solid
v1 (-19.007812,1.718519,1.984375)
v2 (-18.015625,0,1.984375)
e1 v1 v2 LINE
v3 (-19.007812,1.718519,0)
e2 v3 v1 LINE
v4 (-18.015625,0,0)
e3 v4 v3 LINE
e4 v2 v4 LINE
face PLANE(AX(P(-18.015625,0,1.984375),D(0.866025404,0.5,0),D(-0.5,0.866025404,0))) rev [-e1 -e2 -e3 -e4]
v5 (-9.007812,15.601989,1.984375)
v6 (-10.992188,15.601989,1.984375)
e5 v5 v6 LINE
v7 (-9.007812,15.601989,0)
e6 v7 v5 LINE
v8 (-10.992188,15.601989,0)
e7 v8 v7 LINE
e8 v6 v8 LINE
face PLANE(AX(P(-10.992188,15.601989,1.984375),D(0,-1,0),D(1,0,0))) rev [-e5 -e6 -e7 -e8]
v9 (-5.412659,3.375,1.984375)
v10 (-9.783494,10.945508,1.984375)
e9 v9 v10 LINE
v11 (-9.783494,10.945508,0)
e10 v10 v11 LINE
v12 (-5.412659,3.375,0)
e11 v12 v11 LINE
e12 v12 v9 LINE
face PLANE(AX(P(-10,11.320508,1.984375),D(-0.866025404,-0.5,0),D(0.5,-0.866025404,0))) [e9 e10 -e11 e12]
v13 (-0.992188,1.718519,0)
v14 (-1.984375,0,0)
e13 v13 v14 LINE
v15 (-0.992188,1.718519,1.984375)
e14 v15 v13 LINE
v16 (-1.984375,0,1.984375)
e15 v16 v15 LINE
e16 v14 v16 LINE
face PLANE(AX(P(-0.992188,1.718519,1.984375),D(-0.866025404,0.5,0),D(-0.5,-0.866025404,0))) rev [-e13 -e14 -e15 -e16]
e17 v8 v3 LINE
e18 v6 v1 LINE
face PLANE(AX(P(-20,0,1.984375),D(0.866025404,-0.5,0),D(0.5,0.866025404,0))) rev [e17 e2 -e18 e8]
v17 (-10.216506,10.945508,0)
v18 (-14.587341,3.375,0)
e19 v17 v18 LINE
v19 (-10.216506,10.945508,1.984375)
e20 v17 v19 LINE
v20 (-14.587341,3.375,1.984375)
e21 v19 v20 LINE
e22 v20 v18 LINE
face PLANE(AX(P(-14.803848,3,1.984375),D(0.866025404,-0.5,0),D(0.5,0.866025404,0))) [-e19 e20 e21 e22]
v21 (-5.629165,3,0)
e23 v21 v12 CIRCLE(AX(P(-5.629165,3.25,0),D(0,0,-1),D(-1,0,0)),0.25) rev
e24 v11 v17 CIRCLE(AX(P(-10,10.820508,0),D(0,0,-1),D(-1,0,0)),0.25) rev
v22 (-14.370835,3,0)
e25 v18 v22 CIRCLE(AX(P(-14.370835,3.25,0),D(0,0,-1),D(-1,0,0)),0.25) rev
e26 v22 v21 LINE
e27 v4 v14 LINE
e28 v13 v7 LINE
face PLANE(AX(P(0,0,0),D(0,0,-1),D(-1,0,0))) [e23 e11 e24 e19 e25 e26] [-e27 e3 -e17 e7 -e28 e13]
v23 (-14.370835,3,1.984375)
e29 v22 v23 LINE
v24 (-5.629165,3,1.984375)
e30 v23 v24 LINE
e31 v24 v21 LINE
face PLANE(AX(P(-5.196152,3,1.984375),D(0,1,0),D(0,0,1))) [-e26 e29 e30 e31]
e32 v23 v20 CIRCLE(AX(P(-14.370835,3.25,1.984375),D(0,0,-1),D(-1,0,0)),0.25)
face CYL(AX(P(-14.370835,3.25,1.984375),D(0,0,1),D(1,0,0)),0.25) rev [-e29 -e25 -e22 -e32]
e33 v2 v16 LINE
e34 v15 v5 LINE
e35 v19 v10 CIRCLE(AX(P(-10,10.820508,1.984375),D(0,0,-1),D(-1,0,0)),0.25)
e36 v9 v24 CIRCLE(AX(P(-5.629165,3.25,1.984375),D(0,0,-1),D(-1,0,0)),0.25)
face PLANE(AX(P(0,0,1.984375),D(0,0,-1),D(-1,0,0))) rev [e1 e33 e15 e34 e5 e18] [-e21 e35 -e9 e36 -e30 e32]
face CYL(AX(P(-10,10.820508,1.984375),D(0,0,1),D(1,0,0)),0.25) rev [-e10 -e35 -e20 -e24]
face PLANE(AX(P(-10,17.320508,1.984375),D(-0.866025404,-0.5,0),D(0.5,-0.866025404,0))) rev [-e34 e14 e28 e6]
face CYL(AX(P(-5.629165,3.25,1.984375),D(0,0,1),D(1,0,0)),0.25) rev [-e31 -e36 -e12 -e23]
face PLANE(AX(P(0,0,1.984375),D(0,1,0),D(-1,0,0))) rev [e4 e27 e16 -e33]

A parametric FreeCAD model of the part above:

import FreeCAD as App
import Part
import Sketcher
Q = App.Units.Quantity


def edges_at(feature, points):
    """Names of the edges that pass closest to the given points."""
    edges = feature.Shape.Edges
    near = lambda p: min(range(len(edges)), key=lambda i: edges[i].distToShape(Part.Vertex(*p))[0])
    return sorted({f"Edge{near(p) + 1}" for p in points})


def add_polygon(sketch, points):
    """Adds a closed chain of lines whose ends are joined by coincident constraints."""
    first, n = sketch.GeometryCount, len(points)
    for a, b in zip(points, points[1:] + points[:1]):
        sketch.addGeometry(Part.LineSegment(App.Vector(*a, 0), App.Vector(*b, 0)), False)
    for i in range(n):
        sketch.addConstraint(Sketcher.Constraint("Coincident", first + i, 2, first + (i + 1) % n, 1))

doc = App.newDocument("Part")
params = doc.addObject("Spreadsheet::Sheet", "Params")
for row, (alias, value) in enumerate([
    ("sketch1_width", "20 mm"),
    ("pad1_length", "1.984375 mm"),
    ("chamfer_size", "1.984375 mm"),
    ("chamfer2_size", "1.984375 mm"),
    ("chamfer3_size", "1.984375 mm"),
    ("fillet_radius", "0.25 mm"),
], start=1):
    params.set(f"A{row}", alias)
    params.set(f"B{row}", "=" + value)
    params.setAlias(f"B{row}", alias)

body = doc.addObject("PartDesign::Body", "Body")

sketch1 = body.newObject("Sketcher::SketchObject", "Sketch")
sketch1.AttachmentSupport = (doc.getObject("XY_Plane"), [""])
sketch1.MapMode = "FlatFace"
add_polygon(sketch1, [(-20, 0), (0, 0), (-10, 17.320508)])
add_polygon(sketch1, [(-14.803848, 3), (-10, 11.320508), (-5.196152, 3)])
sketch1.addConstraint([
    Sketcher.Constraint("Horizontal", 0),
    Sketcher.Constraint("Horizontal", 5),
    Sketcher.Constraint("Coincident", 0, 2, -1, 1),
    Sketcher.Constraint("Parallel", 2, 3),
    Sketcher.Constraint("Parallel", 1, 4),
    Sketcher.Constraint("Vertical", 1, 2, 3, 2),
    Sketcher.Constraint("Equal", 1, 2),
    Sketcher.Constraint("DistanceX", 0, 1, 0, 2, 20.0),
    Sketcher.Constraint("Angle", 1, Q("120 deg")),
    Sketcher.Constraint("DistanceY", -1, 1, 4, 2, 3.0),
    Sketcher.Constraint("DistanceY", 3, 2, 1, 2, 6.0),
])
sketch1.setExpression("Constraints[13]", "Params.sketch1_width")
pad1 = body.newObject("PartDesign::Pad", "Pad")
pad1.Profile = sketch1
pad1.setExpression("Length", "Params.pad1_length")
doc.recompute()

chamfer = body.newObject("PartDesign::Chamfer", "Chamfer")
chamfer.Base = (pad1, edges_at(pad1, [(-20, 0, 0.992)]))
chamfer.setExpression("Size", "Params.chamfer_size")
doc.recompute()

chamfer2 = body.newObject("PartDesign::Chamfer", "Chamfer001")
chamfer2.Base = (chamfer, edges_at(chamfer, [(0, 0, 0.992)]))
chamfer2.setExpression("Size", "Params.chamfer2_size")
doc.recompute()

chamfer3 = body.newObject("PartDesign::Chamfer", "Chamfer002")
chamfer3.Base = (chamfer2, edges_at(chamfer2, [(-10, 17.321, 0.992)]))
chamfer3.setExpression("Size", "Params.chamfer3_size")
doc.recompute()

fillet = body.newObject("PartDesign::Fillet", "Fillet")
fillet.Base = (chamfer3, edges_at(chamfer3, [(-14.804, 3, 0.992), (-5.196, 3, 0.992), (-10, 11.321, 0.992)]))
fillet.setExpression("Radius", "Params.fillet_radius")

doc.recompute()
